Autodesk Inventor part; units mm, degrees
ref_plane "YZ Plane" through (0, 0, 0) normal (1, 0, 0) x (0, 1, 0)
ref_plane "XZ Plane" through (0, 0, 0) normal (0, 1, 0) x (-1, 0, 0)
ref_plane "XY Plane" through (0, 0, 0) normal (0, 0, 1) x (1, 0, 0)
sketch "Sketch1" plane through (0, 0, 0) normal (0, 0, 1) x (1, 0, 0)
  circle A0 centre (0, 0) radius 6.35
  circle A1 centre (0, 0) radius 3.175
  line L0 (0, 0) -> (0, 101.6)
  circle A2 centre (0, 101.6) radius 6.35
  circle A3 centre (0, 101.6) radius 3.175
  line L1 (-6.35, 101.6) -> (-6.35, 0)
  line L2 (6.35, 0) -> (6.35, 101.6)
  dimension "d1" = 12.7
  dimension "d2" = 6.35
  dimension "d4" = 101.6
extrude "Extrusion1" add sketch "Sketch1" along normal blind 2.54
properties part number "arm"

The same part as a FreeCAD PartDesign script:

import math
import FreeCAD as App
import Part
import Sketcher
Q = App.Units.Quantity

doc = App.newDocument("Part")
body = doc.addObject("PartDesign::Body", "Body")

# Sketch on XY plane
sketch1 = body.newObject("Sketcher::SketchObject", "Sketch")
sketch1.AttachmentSupport = (doc.getObject("XY_Plane"), [""])
sketch1.MapMode = "FlatFace"
sketch1.addGeometry([
    Part.ArcOfCircle(Part.Circle(App.Vector(0, 0, 0), App.Vector(0, 0, 1), 6.3), math.radians(180), math.radians(360)),  # 0
    Part.LineSegment(App.Vector(6.3, 0, 0), App.Vector(6.3, 101.6, 0)),  # 1
    Part.ArcOfCircle(Part.Circle(App.Vector(0, 101.6, 0), App.Vector(0, 0, 1), 6.3), math.radians(0), math.radians(180)),  # 2
    Part.LineSegment(App.Vector(-6.3, 101.6, 0), App.Vector(-6.3, 0, 0)),  # 3
    Part.Circle(App.Vector(0, 0, 0), App.Vector(0, 0, 1), 3.2),  # 4
    Part.Circle(App.Vector(0, 101.6, 0), App.Vector(0, 0, 1), 3.2),  # 5
], False)
sketch1.addConstraint([
    Sketcher.Constraint("Tangent", 0, 2, 1, 1),
    Sketcher.Constraint("Tangent", 1, 2, 2, 1),
    Sketcher.Constraint("Tangent", 2, 2, 3, 1),
    Sketcher.Constraint("Tangent", 3, 2, 0, 1),
    Sketcher.Constraint("Vertical", 1),
    Sketcher.Constraint("Vertical", 3),
    Sketcher.Constraint("Coincident", 0, 3, -1, 1),
    Sketcher.Constraint("Coincident", 4, 3, -1, 1),
    Sketcher.Constraint("Coincident", 5, 3, 2, 3),
    Sketcher.Constraint("Equal", 4, 5),
    Sketcher.Constraint("Diameter", 4, Q("0.25 in")),
    Sketcher.Constraint("DistanceY", 1, 1, 1, 2, Q("4 in")),
    Sketcher.Constraint("Radius", 0, Q("0.25 in")),
])
pad1 = body.newObject("PartDesign::Pad", "Pad")
pad1.Profile = sketch1
pad1.Length = Q("0.1 in")

doc.recompute()
